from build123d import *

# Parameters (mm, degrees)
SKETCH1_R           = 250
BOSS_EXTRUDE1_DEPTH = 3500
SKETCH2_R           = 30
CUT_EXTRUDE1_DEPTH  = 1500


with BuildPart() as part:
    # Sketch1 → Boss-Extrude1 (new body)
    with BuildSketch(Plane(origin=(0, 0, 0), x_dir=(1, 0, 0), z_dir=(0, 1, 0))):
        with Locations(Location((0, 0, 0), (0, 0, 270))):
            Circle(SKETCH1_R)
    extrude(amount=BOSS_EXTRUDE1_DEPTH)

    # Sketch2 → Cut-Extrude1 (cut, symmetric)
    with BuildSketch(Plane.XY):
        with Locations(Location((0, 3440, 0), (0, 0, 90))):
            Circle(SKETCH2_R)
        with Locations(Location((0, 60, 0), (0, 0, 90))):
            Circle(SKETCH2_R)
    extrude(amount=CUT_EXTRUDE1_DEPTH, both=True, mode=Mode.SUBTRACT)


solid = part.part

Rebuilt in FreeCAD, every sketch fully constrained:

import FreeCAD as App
import Part
import Sketcher

V = App.Vector

doc = App.newDocument("Part")
body = doc.addObject("PartDesign::Body", "Body")

sketch1 = body.newObject("Sketcher::SketchObject", "Sketch")
sketch1.AttachmentSupport = (doc.getObject("XZ_Plane"), [""])
sketch1.MapMode = "FlatFace"
sketch1.addGeometry(Part.Circle(V(0, 0, 0), V(0, 0, 1), 250), False)
sketch1.addConstraint(Sketcher.Constraint("Coincident", 0, 3, -1, 1))
sketch1.addConstraint(Sketcher.Constraint("Diameter", 0, 500.0))
pad1 = body.newObject("PartDesign::Pad", "Pad")
pad1.Profile = sketch1
pad1.Length = 3500
pad1.Reversed = True

sketch2 = body.newObject("Sketcher::SketchObject", "Sketch001")
sketch2.AttachmentSupport = (doc.getObject("XY_Plane"), [""])
sketch2.MapMode = "FlatFace"
sketch2.addGeometry(Part.Circle(V(0, 3440, 0), V(0, 0, 1), 30), False)
sketch2.addGeometry(Part.Circle(V(0, 60, 0), V(0, 0, 1), 30), False)
sketch2.addConstraint(Sketcher.Constraint("Equal", 0, 1))
sketch2.addConstraint(Sketcher.Constraint("PointOnObject", 0, 3, -2))
sketch2.addConstraint(Sketcher.Constraint("PointOnObject", 1, 3, -2))
sketch2.addConstraint(Sketcher.Constraint("Diameter", 0, 60.0))
sketch2.addConstraint(Sketcher.Constraint("DistanceY", -1, 1, 0, 3, 3440.0))
sketch2.addConstraint(Sketcher.Constraint("DistanceY", -1, 1, 1, 3, 60.0))
pocket1 = body.newObject("PartDesign::Pocket", "Pocket")
pocket1.Profile = sketch2
pocket1.Length = 3000
pocket1.Midplane = True

doc.recompute()
